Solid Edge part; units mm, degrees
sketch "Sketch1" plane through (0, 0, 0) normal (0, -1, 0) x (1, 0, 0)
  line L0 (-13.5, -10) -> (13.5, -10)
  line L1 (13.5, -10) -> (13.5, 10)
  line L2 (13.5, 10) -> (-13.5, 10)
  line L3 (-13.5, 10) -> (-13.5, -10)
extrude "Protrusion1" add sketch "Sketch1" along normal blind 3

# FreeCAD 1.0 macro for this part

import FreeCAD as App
import Part
import Sketcher
from FreeCAD import Vector
Q = App.Units.Quantity


def add_polygon(sketch, points):
    """Adds a closed chain of lines whose ends are joined by coincident constraints."""
    first, n = sketch.GeometryCount, len(points)
    for a, b in zip(points, points[1:] + points[:1]):
        sketch.addGeometry(Part.LineSegment(App.Vector(*a, 0), App.Vector(*b, 0)), False)
    for i in range(n):
        sketch.addConstraint(Sketcher.Constraint("Coincident", first + i, 2, first + (i + 1) % n, 1))

doc = App.newDocument("Part")
params = doc.addObject("Spreadsheet::Sheet", "Params")
for row, (alias, value) in enumerate([
    ("sketch1_width", "1.063 in"),
    ("pad1_length", "0.1181102 in"),
], start=1):
    params.set(f"A{row}", alias)
    params.set(f"B{row}", "=" + value)
    params.setAlias(f"B{row}", alias)

body = doc.addObject("PartDesign::Body", "Body")

# Sketch on XZ plane
sketch1 = doc.addObject("Sketcher::SketchObject", "Sketch")
body.addObject(sketch1)
sketch1.AttachmentSupport = (doc.XZ_Plane, [""])
sketch1.MapMode = "FlatFace"
add_polygon(sketch1, [(-14, 10), (-14, -10), (14, -10), (14, 10)])  # lines 0-3
sketch1.addConstraint([
    Sketcher.Constraint("Vertical", 0),
    Sketcher.Constraint("Horizontal", 1),
    Sketcher.Constraint("Vertical", 2),
    Sketcher.Constraint("Horizontal", 3),
    Sketcher.Constraint("Symmetric", 0, 2, 2, 2, -1, 1),
    Sketcher.Constraint("DistanceX", 1, 1, 1, 2, Q("1.063 in")),
    Sketcher.Constraint("DistanceY", 0, 2, 0, 1, Q("0.7874 in")),
])
sketch1.setExpression("Constraints[9]", "Params.sketch1_width")
pad1 = doc.addObject("PartDesign::Pad", "Pad")
body.addObject(pad1)
pad1.Profile = sketch1
pad1.setExpression("Length", "Params.pad1_length")

doc.recompute()
